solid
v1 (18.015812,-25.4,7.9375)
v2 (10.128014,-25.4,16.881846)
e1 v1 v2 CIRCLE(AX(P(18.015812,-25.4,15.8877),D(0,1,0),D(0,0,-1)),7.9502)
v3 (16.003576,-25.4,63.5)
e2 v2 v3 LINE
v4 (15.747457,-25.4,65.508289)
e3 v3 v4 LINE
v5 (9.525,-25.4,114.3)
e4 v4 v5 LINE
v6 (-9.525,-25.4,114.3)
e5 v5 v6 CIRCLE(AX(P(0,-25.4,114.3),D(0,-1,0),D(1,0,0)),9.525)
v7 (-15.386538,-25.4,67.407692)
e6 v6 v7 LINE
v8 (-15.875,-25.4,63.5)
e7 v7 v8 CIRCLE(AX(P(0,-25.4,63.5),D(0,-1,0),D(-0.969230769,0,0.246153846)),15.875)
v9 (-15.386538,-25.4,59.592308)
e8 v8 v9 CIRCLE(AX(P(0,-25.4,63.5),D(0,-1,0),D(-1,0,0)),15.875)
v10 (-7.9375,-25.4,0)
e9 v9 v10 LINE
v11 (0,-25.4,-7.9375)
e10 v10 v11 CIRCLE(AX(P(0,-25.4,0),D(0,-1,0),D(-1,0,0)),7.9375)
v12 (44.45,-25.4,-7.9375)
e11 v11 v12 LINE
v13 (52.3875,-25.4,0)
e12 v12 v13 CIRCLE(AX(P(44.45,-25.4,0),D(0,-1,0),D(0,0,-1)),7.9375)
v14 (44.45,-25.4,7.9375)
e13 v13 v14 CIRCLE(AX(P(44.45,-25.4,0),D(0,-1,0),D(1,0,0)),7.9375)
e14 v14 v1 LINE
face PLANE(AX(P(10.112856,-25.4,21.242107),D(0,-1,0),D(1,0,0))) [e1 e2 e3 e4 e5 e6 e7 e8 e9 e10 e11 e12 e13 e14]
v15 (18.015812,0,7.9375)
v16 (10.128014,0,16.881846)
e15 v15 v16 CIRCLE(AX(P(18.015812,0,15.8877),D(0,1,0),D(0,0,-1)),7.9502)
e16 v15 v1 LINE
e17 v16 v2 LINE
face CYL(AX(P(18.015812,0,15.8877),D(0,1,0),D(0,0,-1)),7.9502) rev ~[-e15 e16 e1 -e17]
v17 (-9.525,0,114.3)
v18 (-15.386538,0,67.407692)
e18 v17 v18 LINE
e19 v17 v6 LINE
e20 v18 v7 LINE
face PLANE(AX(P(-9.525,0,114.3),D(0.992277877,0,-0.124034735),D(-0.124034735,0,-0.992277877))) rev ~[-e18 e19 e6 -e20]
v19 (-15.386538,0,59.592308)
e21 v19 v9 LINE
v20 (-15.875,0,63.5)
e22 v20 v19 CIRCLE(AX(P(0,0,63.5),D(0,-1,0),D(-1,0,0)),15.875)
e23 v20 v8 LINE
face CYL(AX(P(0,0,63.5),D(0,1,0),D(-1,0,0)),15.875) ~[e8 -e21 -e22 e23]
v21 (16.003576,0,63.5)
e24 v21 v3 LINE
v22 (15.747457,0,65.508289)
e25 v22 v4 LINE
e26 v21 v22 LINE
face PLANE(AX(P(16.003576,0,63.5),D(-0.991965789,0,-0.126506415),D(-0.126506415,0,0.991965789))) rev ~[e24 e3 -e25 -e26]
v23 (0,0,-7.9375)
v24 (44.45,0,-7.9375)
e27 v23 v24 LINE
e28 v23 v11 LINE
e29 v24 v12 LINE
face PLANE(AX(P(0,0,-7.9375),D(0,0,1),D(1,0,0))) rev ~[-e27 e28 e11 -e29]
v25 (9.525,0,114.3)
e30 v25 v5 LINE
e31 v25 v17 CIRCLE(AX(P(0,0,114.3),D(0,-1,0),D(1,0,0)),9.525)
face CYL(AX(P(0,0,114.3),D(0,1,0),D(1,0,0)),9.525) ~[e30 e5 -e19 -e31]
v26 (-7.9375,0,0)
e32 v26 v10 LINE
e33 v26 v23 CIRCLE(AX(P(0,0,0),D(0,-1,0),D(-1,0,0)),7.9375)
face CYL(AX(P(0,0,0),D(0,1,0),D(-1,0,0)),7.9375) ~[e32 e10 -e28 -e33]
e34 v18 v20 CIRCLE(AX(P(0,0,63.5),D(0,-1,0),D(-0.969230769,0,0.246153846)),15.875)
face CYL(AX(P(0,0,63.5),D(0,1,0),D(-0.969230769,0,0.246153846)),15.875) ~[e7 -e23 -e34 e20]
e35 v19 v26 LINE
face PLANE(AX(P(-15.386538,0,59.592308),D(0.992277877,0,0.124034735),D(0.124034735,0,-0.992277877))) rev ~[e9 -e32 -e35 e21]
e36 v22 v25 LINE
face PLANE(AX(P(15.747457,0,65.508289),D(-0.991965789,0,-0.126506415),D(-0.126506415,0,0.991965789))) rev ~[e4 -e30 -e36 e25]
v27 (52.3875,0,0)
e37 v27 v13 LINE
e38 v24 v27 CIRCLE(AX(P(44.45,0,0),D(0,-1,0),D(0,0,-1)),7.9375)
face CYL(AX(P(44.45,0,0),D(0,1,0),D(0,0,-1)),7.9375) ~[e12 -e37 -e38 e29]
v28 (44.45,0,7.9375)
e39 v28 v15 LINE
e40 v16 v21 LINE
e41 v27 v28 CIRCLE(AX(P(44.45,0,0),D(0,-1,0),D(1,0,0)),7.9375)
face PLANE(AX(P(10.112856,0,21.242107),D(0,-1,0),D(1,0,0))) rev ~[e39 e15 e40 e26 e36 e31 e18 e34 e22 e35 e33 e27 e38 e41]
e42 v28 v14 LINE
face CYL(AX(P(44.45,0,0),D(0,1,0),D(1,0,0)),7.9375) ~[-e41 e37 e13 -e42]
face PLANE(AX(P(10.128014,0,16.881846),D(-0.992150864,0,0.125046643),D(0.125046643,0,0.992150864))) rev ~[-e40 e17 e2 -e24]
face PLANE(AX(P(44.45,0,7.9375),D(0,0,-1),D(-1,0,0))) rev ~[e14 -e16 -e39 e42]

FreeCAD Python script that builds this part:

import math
import FreeCAD as App
import Part
import Sketcher

V = App.Vector
Q = App.Units.Quantity

doc = App.newDocument("Part")
body = doc.addObject("PartDesign::Body", "Body")

sketch1 = body.newObject("Sketcher::SketchObject", "Sketch")
sketch1.AttachmentSupport = (doc.getObject("XZ_Plane"), [""])
sketch1.MapMode = "FlatFace"
sketch1.addGeometry([
    Part.LineSegment(V(0, -7.9, 0), V(44.5, -7.9, 0)),
    Part.ArcOfCircle(Part.Circle(V(44.5, 0, 0), V(0, 0, 1), 7.9), math.radians(-90), math.radians(0)),
    Part.ArcOfCircle(Part.Circle(V(44.5, 0, 0), V(0, 0, 1), 7.9), math.radians(0), math.radians(90)),
    Part.LineSegment(V(44.5, 7.9, 0), V(18, 7.9, 0)),
    Part.ArcOfCircle(Part.Circle(V(18, 15.9, 0), V(0, 0, 1), 8), math.radians(173), math.radians(270)),
    Part.LineSegment(V(10.1, 16.9, 0), V(16, 63.5, 0)),
    Part.LineSegment(V(16, 63.5, 0), V(15.7, 65.5, 0)),
    Part.LineSegment(V(15.7, 65.5, 0), V(9.5, 114.3, 0)),
    Part.ArcOfCircle(Part.Circle(V(0, 114.3, 0), V(0, 0, 1), 9.5), math.radians(0), math.radians(180)),
    Part.LineSegment(V(-9.5, 114.3, 0), V(-15.4, 67.4, 0)),
    Part.ArcOfCircle(Part.Circle(V(0, 63.5, 0), V(0, 0, 1), 15.9), math.radians(165.75), math.radians(180)),
    Part.ArcOfCircle(Part.Circle(V(0, 63.5, 0), V(0, 0, 1), 15.9), math.radians(180), math.radians(194.25)),
    Part.LineSegment(V(-15.4, 59.6, 0), V(-7.9, 0, 0)),
    Part.ArcOfCircle(Part.Circle(V(0, 0, 0), V(0, 0, 1), 7.9), math.radians(180), math.radians(270)),
], False)
sketch1.addConstraint([
    Sketcher.Constraint("Tangent", 0, 2, 1, 1),
    Sketcher.Constraint("Tangent", 1, 2, 2, 1),
    Sketcher.Constraint("Tangent", 2, 2, 3, 1),
    Sketcher.Constraint("Tangent", 3, 2, 4, 2),
    Sketcher.Constraint("Tangent", 4, 1, 5, 1),
    Sketcher.Constraint("Coincident", 5, 2, 6, 1),
    Sketcher.Constraint("Coincident", 6, 2, 7, 1),
    Sketcher.Constraint("Coincident", 7, 2, 8, 1),
    Sketcher.Constraint("Coincident", 8, 2, 9, 1),
    Sketcher.Constraint("Coincident", 9, 2, 10, 1),
    Sketcher.Constraint("Tangent", 10, 2, 11, 1),
    Sketcher.Constraint("Coincident", 11, 2, 12, 1),
    Sketcher.Constraint("Coincident", 12, 2, 13, 1),
    Sketcher.Constraint("Tangent", 13, 2, 0, 1),
    Sketcher.Constraint("Horizontal", 0),
    Sketcher.Constraint("Horizontal", 3),
    Sketcher.Constraint("Coincident", 13, 3, -1, 1),
    Sketcher.Constraint("Equal", 1, 2),
    Sketcher.Constraint("Equal", 10, 11),
    Sketcher.Constraint("Equal", 2, 13),
    Sketcher.Constraint("Symmetric", 7, 2, 8, 2, -2),
    Sketcher.Constraint("PointOnObject", 10, 3, -2),
    Sketcher.Constraint("PointOnObject", 1, 2, -1),
    Sketcher.Constraint("PointOnObject", 12, 2, -1),
    Sketcher.Constraint("Parallel", 6, 7),
    Sketcher.Constraint("Horizontal", 11, 3, 5, 2),
    Sketcher.Constraint("Horizontal", 8, 3, 7, 2),
    Sketcher.Constraint("Horizontal", 5, 2, 10, 2),
    Sketcher.Constraint("Vertical", 9, 2, 11, 2),
    Sketcher.Constraint("Radius", 1, Q("0.3125 in")),
    Sketcher.Constraint("Radius", 4, Q("0.313 in")),
    Sketcher.Constraint("Radius", 8, Q("0.375 in")),
    Sketcher.Constraint("Radius", 10, Q("0.625 in")),
    Sketcher.Constraint("DistanceY", 10, 3, 8, 3, Q("2 in")),
    Sketcher.Constraint("DistanceX", 0, 1, 0, 2, Q("1.75 in")),
    Sketcher.Constraint("DistanceY", -1, 1, 8, 3, Q("4.5 in")),
    Sketcher.Constraint("Distance", 5, Q("46.986961 mm")),
    Sketcher.Constraint("Distance", 7, Q("49.186889 mm")),
    Sketcher.Constraint("Distance", 12, Q("60.056068 mm")),
    Sketcher.Constraint("DistanceX", 3, 2, 3, 1, Q("26.434188 mm")),
])
pad1 = body.newObject("PartDesign::Pad", "Pad")
pad1.Profile = sketch1
pad1.Length = Q("1 in")

doc.recompute()
